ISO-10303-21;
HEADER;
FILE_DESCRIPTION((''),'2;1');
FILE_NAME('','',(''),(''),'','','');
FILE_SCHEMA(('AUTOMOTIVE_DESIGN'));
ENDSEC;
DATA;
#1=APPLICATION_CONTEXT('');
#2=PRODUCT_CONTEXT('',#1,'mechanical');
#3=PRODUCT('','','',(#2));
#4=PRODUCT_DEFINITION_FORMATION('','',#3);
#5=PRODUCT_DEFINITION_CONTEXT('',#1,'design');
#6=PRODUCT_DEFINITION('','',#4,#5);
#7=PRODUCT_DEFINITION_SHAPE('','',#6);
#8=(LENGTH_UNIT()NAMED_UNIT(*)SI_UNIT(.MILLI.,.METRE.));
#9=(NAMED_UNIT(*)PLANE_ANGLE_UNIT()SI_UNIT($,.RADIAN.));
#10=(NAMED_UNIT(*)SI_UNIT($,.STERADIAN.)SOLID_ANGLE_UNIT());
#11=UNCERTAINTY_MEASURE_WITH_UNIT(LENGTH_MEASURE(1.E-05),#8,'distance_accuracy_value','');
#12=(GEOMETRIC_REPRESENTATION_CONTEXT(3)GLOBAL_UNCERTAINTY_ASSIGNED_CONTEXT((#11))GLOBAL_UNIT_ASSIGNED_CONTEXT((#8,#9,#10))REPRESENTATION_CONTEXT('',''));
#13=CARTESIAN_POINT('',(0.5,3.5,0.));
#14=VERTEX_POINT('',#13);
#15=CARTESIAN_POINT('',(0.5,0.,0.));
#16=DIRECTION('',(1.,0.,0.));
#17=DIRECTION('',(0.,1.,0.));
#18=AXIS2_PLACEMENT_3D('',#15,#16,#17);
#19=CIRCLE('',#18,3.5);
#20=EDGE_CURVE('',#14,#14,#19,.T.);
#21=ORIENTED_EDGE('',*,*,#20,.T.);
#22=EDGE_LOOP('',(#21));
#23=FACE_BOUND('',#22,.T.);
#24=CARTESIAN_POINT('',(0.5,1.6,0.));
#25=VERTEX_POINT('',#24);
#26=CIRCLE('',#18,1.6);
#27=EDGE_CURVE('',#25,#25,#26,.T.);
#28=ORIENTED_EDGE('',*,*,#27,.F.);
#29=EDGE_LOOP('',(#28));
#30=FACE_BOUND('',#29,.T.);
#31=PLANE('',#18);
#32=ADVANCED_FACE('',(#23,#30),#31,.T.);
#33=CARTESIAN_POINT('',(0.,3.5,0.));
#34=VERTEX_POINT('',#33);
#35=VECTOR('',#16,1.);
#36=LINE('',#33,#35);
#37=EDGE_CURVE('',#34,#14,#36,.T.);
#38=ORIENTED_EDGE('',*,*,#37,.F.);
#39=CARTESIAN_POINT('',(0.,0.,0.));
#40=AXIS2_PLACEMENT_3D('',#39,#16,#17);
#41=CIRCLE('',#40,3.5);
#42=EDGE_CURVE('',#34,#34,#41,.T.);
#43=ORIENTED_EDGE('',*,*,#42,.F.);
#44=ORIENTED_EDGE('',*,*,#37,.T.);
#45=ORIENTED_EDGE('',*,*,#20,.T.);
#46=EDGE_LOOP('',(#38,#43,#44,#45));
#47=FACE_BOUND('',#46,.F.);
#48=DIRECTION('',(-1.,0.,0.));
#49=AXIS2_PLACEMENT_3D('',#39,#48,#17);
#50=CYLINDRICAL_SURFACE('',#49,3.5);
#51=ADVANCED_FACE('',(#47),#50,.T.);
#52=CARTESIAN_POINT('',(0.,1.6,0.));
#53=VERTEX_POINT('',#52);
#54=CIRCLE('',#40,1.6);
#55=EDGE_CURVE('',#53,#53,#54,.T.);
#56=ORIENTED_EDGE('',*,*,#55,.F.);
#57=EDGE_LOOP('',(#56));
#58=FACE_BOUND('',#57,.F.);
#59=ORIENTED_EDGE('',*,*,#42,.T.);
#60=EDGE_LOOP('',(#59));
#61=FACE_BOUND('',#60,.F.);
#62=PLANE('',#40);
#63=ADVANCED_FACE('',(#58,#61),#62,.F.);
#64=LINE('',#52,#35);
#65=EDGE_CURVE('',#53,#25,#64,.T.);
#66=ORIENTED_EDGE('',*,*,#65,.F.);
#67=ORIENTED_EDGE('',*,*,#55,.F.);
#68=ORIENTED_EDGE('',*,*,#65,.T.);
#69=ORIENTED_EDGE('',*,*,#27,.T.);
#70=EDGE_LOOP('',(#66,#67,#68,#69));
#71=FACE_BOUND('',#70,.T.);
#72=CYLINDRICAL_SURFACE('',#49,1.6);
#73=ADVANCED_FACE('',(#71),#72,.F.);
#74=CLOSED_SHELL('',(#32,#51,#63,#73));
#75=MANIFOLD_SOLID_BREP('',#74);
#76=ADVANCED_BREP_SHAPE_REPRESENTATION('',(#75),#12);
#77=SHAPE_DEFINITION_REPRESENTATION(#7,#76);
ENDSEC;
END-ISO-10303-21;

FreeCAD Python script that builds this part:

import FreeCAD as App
import Part
import Sketcher

doc = App.newDocument("Part")
body = doc.addObject("PartDesign::Body", "Body")

sketch1 = doc.addObject("Sketcher::SketchObject", "Sketch")
body.addObject(sketch1)
sketch1.AttachmentSupport = (doc.YZ_Plane, [""])
sketch1.MapMode = "FlatFace"
sketch1.addGeometry(Part.Circle(App.Vector(0, 0, 0), App.Vector(0, 0, 1), 3.5), False)
sketch1.addGeometry(Part.Circle(App.Vector(0, 0, 0), App.Vector(0, 0, 1), 1.6), False)
sketch1.addConstraint(Sketcher.Constraint("Coincident", 0, 3, -1, 1))
sketch1.addConstraint(Sketcher.Constraint("Coincident", 1, 3, -1, 1))
sketch1.addConstraint(Sketcher.Constraint("Diameter", 0, 7.0))
sketch1.addConstraint(Sketcher.Constraint("Diameter", 1, 3.2))
pad1 = doc.addObject("PartDesign::Pad", "Pad")
body.addObject(pad1)
pad1.Profile = sketch1
pad1.Length = 0.5

doc.recompute()
